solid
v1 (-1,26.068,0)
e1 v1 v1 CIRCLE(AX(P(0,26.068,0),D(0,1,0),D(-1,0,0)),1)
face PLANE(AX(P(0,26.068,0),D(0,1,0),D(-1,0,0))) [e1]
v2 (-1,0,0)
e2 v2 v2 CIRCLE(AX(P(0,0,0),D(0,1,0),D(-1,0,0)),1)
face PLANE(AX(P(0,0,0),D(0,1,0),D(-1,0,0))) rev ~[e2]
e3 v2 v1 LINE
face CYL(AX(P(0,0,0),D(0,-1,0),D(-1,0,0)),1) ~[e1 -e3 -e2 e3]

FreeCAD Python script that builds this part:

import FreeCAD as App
import Part
import Sketcher

V = App.Vector
Q = App.Units.Quantity

doc = App.newDocument("Part")
body = doc.addObject("PartDesign::Body", "Body")

sketch1 = body.newObject("Sketcher::SketchObject", "Sketch")
sketch1.AttachmentSupport = (doc.getObject("XZ_Plane"), [""])
sketch1.MapMode = "FlatFace"
sketch1.addGeometry(Part.Circle(V(0, 0, 0), V(0, 0, 1), 1), False)
sketch1.addConstraint([
    Sketcher.Constraint("Coincident", 0, 3, -1, 1),
    Sketcher.Constraint("Diameter", 0, Q("2 mm")),
])
pad1 = body.newObject("PartDesign::Pad", "Pad")
pad1.Profile = sketch1
pad1.Length = 26.068
pad1.Reversed = True

doc.recompute()
